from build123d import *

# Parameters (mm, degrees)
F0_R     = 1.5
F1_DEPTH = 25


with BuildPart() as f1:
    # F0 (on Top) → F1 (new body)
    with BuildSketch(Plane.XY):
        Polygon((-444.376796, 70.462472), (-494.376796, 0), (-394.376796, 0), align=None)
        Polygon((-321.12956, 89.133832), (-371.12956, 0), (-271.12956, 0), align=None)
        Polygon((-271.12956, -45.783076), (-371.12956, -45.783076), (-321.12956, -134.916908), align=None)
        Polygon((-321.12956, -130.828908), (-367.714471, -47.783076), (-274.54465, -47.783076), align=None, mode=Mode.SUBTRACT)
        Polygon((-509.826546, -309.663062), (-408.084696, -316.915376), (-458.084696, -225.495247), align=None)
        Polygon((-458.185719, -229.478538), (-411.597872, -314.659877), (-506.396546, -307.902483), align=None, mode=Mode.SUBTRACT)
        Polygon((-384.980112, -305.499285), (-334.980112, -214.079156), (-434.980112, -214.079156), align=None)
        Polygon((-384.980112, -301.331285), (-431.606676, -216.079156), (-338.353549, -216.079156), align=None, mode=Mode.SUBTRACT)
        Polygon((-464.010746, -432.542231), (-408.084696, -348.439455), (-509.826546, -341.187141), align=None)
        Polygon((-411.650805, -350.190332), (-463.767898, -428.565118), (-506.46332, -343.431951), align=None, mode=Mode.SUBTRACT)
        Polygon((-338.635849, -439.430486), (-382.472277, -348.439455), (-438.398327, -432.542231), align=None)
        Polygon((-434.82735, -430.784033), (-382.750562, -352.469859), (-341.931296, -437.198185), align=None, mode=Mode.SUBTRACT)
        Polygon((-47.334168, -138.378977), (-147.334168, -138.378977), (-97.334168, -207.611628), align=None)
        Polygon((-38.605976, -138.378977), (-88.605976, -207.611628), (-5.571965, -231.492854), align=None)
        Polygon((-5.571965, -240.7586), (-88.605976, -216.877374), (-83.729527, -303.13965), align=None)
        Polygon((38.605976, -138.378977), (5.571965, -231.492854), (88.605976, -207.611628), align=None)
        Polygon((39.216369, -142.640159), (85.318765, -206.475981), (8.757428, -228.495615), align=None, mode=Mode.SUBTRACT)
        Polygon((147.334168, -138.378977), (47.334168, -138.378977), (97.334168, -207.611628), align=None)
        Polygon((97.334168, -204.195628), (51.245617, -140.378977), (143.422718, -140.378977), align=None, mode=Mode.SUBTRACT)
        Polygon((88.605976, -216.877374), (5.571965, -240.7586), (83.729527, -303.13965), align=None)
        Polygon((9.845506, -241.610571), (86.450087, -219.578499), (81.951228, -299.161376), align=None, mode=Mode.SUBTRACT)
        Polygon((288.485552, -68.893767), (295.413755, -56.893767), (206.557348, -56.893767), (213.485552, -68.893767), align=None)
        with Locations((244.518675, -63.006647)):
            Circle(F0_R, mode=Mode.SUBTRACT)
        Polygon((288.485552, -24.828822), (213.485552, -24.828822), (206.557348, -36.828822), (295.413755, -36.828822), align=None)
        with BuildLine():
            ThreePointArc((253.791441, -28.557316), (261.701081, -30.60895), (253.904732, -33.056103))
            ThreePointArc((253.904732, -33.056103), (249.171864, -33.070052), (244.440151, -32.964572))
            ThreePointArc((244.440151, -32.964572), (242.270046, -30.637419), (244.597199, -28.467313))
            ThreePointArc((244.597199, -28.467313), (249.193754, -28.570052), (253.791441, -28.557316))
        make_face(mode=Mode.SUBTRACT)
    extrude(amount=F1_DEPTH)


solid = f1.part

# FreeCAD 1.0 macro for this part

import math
import FreeCAD as App
import Part
import Sketcher

V = App.Vector
Q = App.Units.Quantity

doc = App.newDocument("Part")
params = doc.addObject("Spreadsheet::Sheet", "Params")
for row, (alias, value) in enumerate([
    ("sketch1_diameter", "3 mm"),
    ("sketch1_width", "100 mm"),
    ("sketch1_width2", "75 mm"),
    ("sketch1_radius", "4.25 mm"),
    ("sketch1_radius2", "2.25 mm"),
    ("pad1_length", "25 mm"),
], start=1):
    params.set(f"A{row}", alias)
    params.set(f"B{row}", "=" + value)
    params.setAlias(f"B{row}", alias)

body = doc.addObject("PartDesign::Body", "Body")
body.AllowCompound = True

# Sketch on XY plane
sketch1 = body.newObject("Sketcher::SketchObject", "Sketch")
sketch1.AttachmentSupport = (doc.getObject("XY_Plane"), [""])
sketch1.MapMode = "FlatFace"
sketch1.addGeometry([
    Part.LineSegment(V(-444.4, 70.5, 0), V(-494.4, 0, 0)),  # 0
    Part.LineSegment(V(-494.4, 0, 0), V(-394.4, 0, 0)),  # 1
    Part.LineSegment(V(-394.4, 0, 0), V(-444.4, 70.5, 0)),  # 2
    Part.LineSegment(V(-321.1, 89.1, 0), V(-371.1, 0, 0)),  # 3
    Part.LineSegment(V(-371.1, 0, 0), V(-271.1, 0, 0)),  # 4
    Part.LineSegment(V(-271.1, 0, 0), V(-321.1, 89.1, 0)),  # 5
    Part.LineSegment(V(-271.1, -45.8, 0), V(-371.1, -45.8, 0)),  # 6
    Part.LineSegment(V(-371.1, -45.8, 0), V(-321.1, -134.9, 0)),  # 7
    Part.LineSegment(V(-321.1, -134.9, 0), V(-271.1, -45.8, 0)),  # 8
    Part.LineSegment(V(-274.5, -47.8, 0), V(-321.1, -130.8, 0)),  # 9
    Part.LineSegment(V(-321.1, -130.8, 0), V(-367.7, -47.8, 0)),  # 10
    Part.LineSegment(V(-367.7, -47.8, 0), V(-274.5, -47.8, 0)),  # 11
    Part.LineSegment(V(-509.8, -309.7, 0), V(-408.1, -316.9, 0)),  # 12
    Part.LineSegment(V(-408.1, -316.9, 0), V(-458.1, -225.5, 0)),  # 13
    Part.LineSegment(V(-458.1, -225.5, 0), V(-509.8, -309.7, 0)),  # 14
    Part.LineSegment(V(-506.4, -307.9, 0), V(-458.2, -229.5, 0)),  # 15
    Part.LineSegment(V(-458.2, -229.5, 0), V(-411.6, -314.7, 0)),  # 16
    Part.LineSegment(V(-411.6, -314.7, 0), V(-506.4, -307.9, 0)),  # 17
    Part.LineSegment(V(-385, -305.5, 0), V(-335, -214.1, 0)),  # 18
    Part.LineSegment(V(-335, -214.1, 0), V(-435, -214.1, 0)),  # 19
    Part.LineSegment(V(-435, -214.1, 0), V(-385, -305.5, 0)),  # 20
    Part.LineSegment(V(-338.4, -216.1, 0), V(-385, -301.3, 0)),  # 21
    Part.LineSegment(V(-385, -301.3, 0), V(-431.6, -216.1, 0)),  # 22
    Part.LineSegment(V(-431.6, -216.1, 0), V(-338.4, -216.1, 0)),  # 23
    Part.LineSegment(V(-464, -432.5, 0), V(-408.1, -348.4, 0)),  # 24
    Part.LineSegment(V(-408.1, -348.4, 0), V(-509.8, -341.2, 0)),  # 25
    Part.LineSegment(V(-509.8, -341.2, 0), V(-464, -432.5, 0)),  # 26
    Part.LineSegment(V(-506.5, -343.4, 0), V(-411.7, -350.2, 0)),  # 27
    Part.LineSegment(V(-411.7, -350.2, 0), V(-463.8, -428.6, 0)),  # 28
    Part.LineSegment(V(-463.8, -428.6, 0), V(-506.5, -343.4, 0)),  # 29
    Part.LineSegment(V(-338.6, -439.4, 0), V(-382.5, -348.4, 0)),  # 30
    Part.LineSegment(V(-382.5, -348.4, 0), V(-438.4, -432.5, 0)),  # 31
    Part.LineSegment(V(-438.4, -432.5, 0), V(-338.6, -439.4, 0)),  # 32
    Part.LineSegment(V(-341.9, -437.2, 0), V(-434.8, -430.8, 0)),  # 33
    Part.LineSegment(V(-434.8, -430.8, 0), V(-382.8, -352.5, 0)),  # 34
    Part.LineSegment(V(-382.8, -352.5, 0), V(-341.9, -437.2, 0)),  # 35
    Part.LineSegment(V(-47.3, -138.4, 0), V(-147.3, -138.4, 0)),  # 36
    Part.LineSegment(V(-147.3, -138.4, 0), V(-97.3, -207.6, 0)),  # 37
    Part.LineSegment(V(-97.3, -207.6, 0), V(-47.3, -138.4, 0)),  # 38
    Part.LineSegment(V(-38.6, -138.4, 0), V(-88.6, -207.6, 0)),  # 39
    Part.LineSegment(V(-88.6, -207.6, 0), V(-5.6, -231.5, 0)),  # 40
    Part.LineSegment(V(-5.6, -231.5, 0), V(-38.6, -138.4, 0)),  # 41
    Part.LineSegment(V(-5.6, -240.8, 0), V(-88.6, -216.9, 0)),  # 42
    Part.LineSegment(V(-88.6, -216.9, 0), V(-83.7, -303.1, 0)),  # 43
    Part.LineSegment(V(-83.7, -303.1, 0), V(-5.6, -240.8, 0)),  # 44
    Part.LineSegment(V(38.6, -138.4, 0), V(5.6, -231.5, 0)),  # 45
    Part.LineSegment(V(5.6, -231.5, 0), V(88.6, -207.6, 0)),  # 46
    Part.LineSegment(V(88.6, -207.6, 0), V(38.6, -138.4, 0)),  # 47
    Part.LineSegment(V(8.8, -228.5, 0), V(39.2, -142.6, 0)),  # 48
    Part.LineSegment(V(39.2, -142.6, 0), V(85.3, -206.5, 0)),  # 49
    Part.LineSegment(V(85.3, -206.5, 0), V(8.8, -228.5, 0)),  # 50
    Part.LineSegment(V(147.3, -138.4, 0), V(47.3, -138.4, 0)),  # 51
    Part.LineSegment(V(47.3, -138.4, 0), V(97.3, -207.6, 0)),  # 52
    Part.LineSegment(V(97.3, -207.6, 0), V(147.3, -138.4, 0)),  # 53
    Part.LineSegment(V(143.4, -140.4, 0), V(97.3, -204.2, 0)),  # 54
    Part.LineSegment(V(97.3, -204.2, 0), V(51.2, -140.4, 0)),  # 55
    Part.LineSegment(V(51.2, -140.4, 0), V(143.4, -140.4, 0)),  # 56
    Part.LineSegment(V(88.6, -216.9, 0), V(5.6, -240.8, 0)),  # 57
    Part.LineSegment(V(5.6, -240.8, 0), V(83.7, -303.1, 0)),  # 58
    Part.LineSegment(V(83.7, -303.1, 0), V(88.6, -216.9, 0)),  # 59
    Part.LineSegment(V(82, -299.2, 0), V(9.8, -241.6, 0)),  # 60
    Part.LineSegment(V(9.8, -241.6, 0), V(86.5, -219.6, 0)),  # 61
    Part.LineSegment(V(86.5, -219.6, 0), V(82, -299.2, 0)),  # 62
    Part.LineSegment(V(288.5, -68.9, 0), V(295.4, -56.9, 0)),  # 63
    Part.LineSegment(V(295.4, -56.9, 0), V(206.6, -56.9, 0)),  # 64
    Part.LineSegment(V(206.6, -56.9, 0), V(213.5, -68.9, 0)),  # 65
    Part.LineSegment(V(213.5, -68.9, 0), V(288.5, -68.9, 0)),  # 66
    Part.Circle(V(244.5, -63, 0), V(0, 0, 1), 1.5),  # 67
    Part.LineSegment(V(288.5, -24.8, 0), V(213.5, -24.8, 0)),  # 68
    Part.LineSegment(V(213.5, -24.8, 0), V(206.6, -36.8, 0)),  # 69
    Part.LineSegment(V(206.6, -36.8, 0), V(295.4, -36.8, 0)),  # 70
    Part.LineSegment(V(295.4, -36.8, 0), V(288.5, -24.8, 0)),  # 71
    Part.ArcOfCircle(Part.Circle(V(251, 154.5, 0), V(0, 0, 1), 183.1), math.radians(-92), math.radians(-89.12)),  # 72
    Part.ArcOfCircle(Part.Circle(V(257.5, -30.7, 0), V(0, 0, 1), 4.2), math.radians(-147), math.radians(149)),  # 73
    Part.ArcOfCircle(Part.Circle(V(251, 154.5, 0), V(0, 0, 1), 187.6), math.radians(-92), math.radians(-89.11)),  # 74
    Part.ArcOfCircle(Part.Circle(V(244.5, -30.7, 0), V(0, 0, 1), 2.3), math.radians(88), math.radians(268)),  # 75
], False)
sketch1.addConstraint([
    Sketcher.Constraint("Coincident", 0, 2, 1, 1),
    Sketcher.Constraint("Coincident", 1, 2, 2, 1),
    Sketcher.Constraint("Coincident", 2, 2, 0, 1),
    Sketcher.Constraint("Coincident", 3, 2, 4, 1),
    Sketcher.Constraint("Coincident", 4, 2, 5, 1),
    Sketcher.Constraint("Coincident", 5, 2, 3, 1),
    Sketcher.Constraint("Coincident", 6, 2, 7, 1),
    Sketcher.Constraint("Coincident", 7, 2, 8, 1),
    Sketcher.Constraint("Coincident", 8, 2, 6, 1),
    Sketcher.Constraint("Coincident", 9, 2, 10, 1),
    Sketcher.Constraint("Coincident", 10, 2, 11, 1),
    Sketcher.Constraint("Coincident", 11, 2, 9, 1),
    Sketcher.Constraint("Coincident", 12, 2, 13, 1),
    Sketcher.Constraint("Coincident", 13, 2, 14, 1),
    Sketcher.Constraint("Coincident", 14, 2, 12, 1),
    Sketcher.Constraint("Coincident", 15, 2, 16, 1),
    Sketcher.Constraint("Coincident", 16, 2, 17, 1),
    Sketcher.Constraint("Coincident", 17, 2, 15, 1),
    Sketcher.Constraint("Coincident", 18, 2, 19, 1),
    Sketcher.Constraint("Coincident", 19, 2, 20, 1),
    Sketcher.Constraint("Coincident", 20, 2, 18, 1),
    Sketcher.Constraint("Coincident", 21, 2, 22, 1),
    Sketcher.Constraint("Coincident", 22, 2, 23, 1),
    Sketcher.Constraint("Coincident", 23, 2, 21, 1),
    Sketcher.Constraint("Coincident", 24, 2, 25, 1),
    Sketcher.Constraint("Coincident", 25, 2, 26, 1),
    Sketcher.Constraint("Coincident", 26, 2, 24, 1),
    Sketcher.Constraint("Coincident", 27, 2, 28, 1),
    Sketcher.Constraint("Coincident", 28, 2, 29, 1),
    Sketcher.Constraint("Coincident", 29, 2, 27, 1),
    Sketcher.Constraint("Coincident", 30, 2, 31, 1),
    Sketcher.Constraint("Coincident", 31, 2, 32, 1),
    Sketcher.Constraint("Coincident", 32, 2, 30, 1),
    Sketcher.Constraint("Coincident", 33, 2, 34, 1),
    Sketcher.Constraint("Coincident", 34, 2, 35, 1),
    Sketcher.Constraint("Coincident", 35, 2, 33, 1),
    Sketcher.Constraint("Coincident", 36, 2, 37, 1),
    Sketcher.Constraint("Coincident", 37, 2, 38, 1),
    Sketcher.Constraint("Coincident", 38, 2, 36, 1),
    Sketcher.Constraint("Coincident", 39, 2, 40, 1),
    Sketcher.Constraint("Coincident", 40, 2, 41, 1),
    Sketcher.Constraint("Coincident", 41, 2, 39, 1),
    Sketcher.Constraint("Coincident", 42, 2, 43, 1),
    Sketcher.Constraint("Coincident", 43, 2, 44, 1),
    Sketcher.Constraint("Coincident", 44, 2, 42, 1),
    Sketcher.Constraint("Coincident", 45, 2, 46, 1),
    Sketcher.Constraint("Coincident", 46, 2, 47, 1),
    Sketcher.Constraint("Coincident", 47, 2, 45, 1),
    Sketcher.Constraint("Coincident", 48, 2, 49, 1),
    Sketcher.Constraint("Coincident", 49, 2, 50, 1),
    Sketcher.Constraint("Coincident", 50, 2, 48, 1),
    Sketcher.Constraint("Coincident", 51, 2, 52, 1),
    Sketcher.Constraint("Coincident", 52, 2, 53, 1),
    Sketcher.Constraint("Coincident", 53, 2, 51, 1),
    Sketcher.Constraint("Coincident", 54, 2, 55, 1),
    Sketcher.Constraint("Coincident", 55, 2, 56, 1),
    Sketcher.Constraint("Coincident", 56, 2, 54, 1),
    Sketcher.Constraint("Coincident", 57, 2, 58, 1),
    Sketcher.Constraint("Coincident", 58, 2, 59, 1),
    Sketcher.Constraint("Coincident", 59, 2, 57, 1),
    Sketcher.Constraint("Coincident", 60, 2, 61, 1),
    Sketcher.Constraint("Coincident", 61, 2, 62, 1),
    Sketcher.Constraint("Coincident", 62, 2, 60, 1),
    Sketcher.Constraint("Coincident", 63, 2, 64, 1),
    Sketcher.Constraint("Coincident", 64, 2, 65, 1),
    Sketcher.Constraint("Coincident", 65, 2, 66, 1),
    Sketcher.Constraint("Coincident", 66, 2, 63, 1),
    Sketcher.Constraint("Coincident", 68, 2, 69, 1),
    Sketcher.Constraint("Coincident", 69, 2, 70, 1),
    Sketcher.Constraint("Coincident", 70, 2, 71, 1),
    Sketcher.Constraint("Coincident", 71, 2, 68, 1),
    Sketcher.Constraint("Coincident", 72, 2, 73, 2),
    Sketcher.Constraint("Coincident", 73, 1, 74, 2),
    Sketcher.Constraint("Tangent", 74, 1, 75, 2),
    Sketcher.Constraint("Tangent", 75, 1, 72, 1),
    Sketcher.Constraint("Horizontal", 1),
    Sketcher.Constraint("Horizontal", 4),
    Sketcher.Constraint("Horizontal", 6),
    Sketcher.Constraint("Horizontal", 11),
    Sketcher.Constraint("Horizontal", 19),
    Sketcher.Constraint("Horizontal", 23),
    Sketcher.Constraint("Horizontal", 36),
    Sketcher.Constraint("Horizontal", 51),
    Sketcher.Constraint("Horizontal", 56),
    Sketcher.Constraint("Horizontal", 64),
    Sketcher.Constraint("Horizontal", 66),
    Sketcher.Constraint("Horizontal", 68),
    Sketcher.Constraint("Horizontal", 70),
    Sketcher.Constraint("Symmetric", 40, 2, 45, 2, -2),
    Sketcher.Constraint("Symmetric", 39, 2, 46, 2, -2),
    Sketcher.Constraint("Symmetric", 41, 2, 47, 2, -2),
    Sketcher.Constraint("Symmetric", 38, 2, 51, 2, -2),
    Sketcher.Constraint("Symmetric", 37, 2, 52, 2, -2),
    Sketcher.Constraint("Symmetric", 44, 2, 57, 2, -2),
    Sketcher.Constraint("Symmetric", 43, 2, 58, 2, -2),
    Sketcher.Constraint("Symmetric", 42, 2, 59, 2, -2),
    Sketcher.Constraint("PointOnObject", 0, 2, -1),
    Sketcher.Constraint("PointOnObject", 3, 2, -1),
    Sketcher.Constraint("Parallel", 5, 7),
    Sketcher.Constraint("Parallel", 3, 8),
    Sketcher.Constraint("Parallel", 8, 9),
    Sketcher.Constraint("Parallel", 7, 10),
    Sketcher.Constraint("Parallel", 14, 15),
    Sketcher.Constraint("Parallel", 13, 16),
    Sketcher.Constraint("Parallel", 12, 17),
    Sketcher.Constraint("Parallel", 16, 20),
    Sketcher.Constraint("Parallel", 18, 21),
    Sketcher.Constraint("Parallel", 20, 22),
    Sketcher.Constraint("Parallel", 17, 25),
    Sketcher.Constraint("Parallel", 25, 27),
    Sketcher.Constraint("Parallel", 24, 28),
    Sketcher.Constraint("Parallel", 26, 29),
    Sketcher.Constraint("Parallel", 28, 31),
    Sketcher.Constraint("Parallel", 32, 33),
    Sketcher.Constraint("Parallel", 31, 34),
    Sketcher.Constraint("Parallel", 30, 35),
    Sketcher.Constraint("Parallel", 38, 39),
    Sketcher.Constraint("Parallel", 40, 42),
    Sketcher.Constraint("Parallel", 37, 47),
    Sketcher.Constraint("Parallel", 45, 48),
    Sketcher.Constraint("Parallel", 47, 49),
    Sketcher.Constraint("Parallel", 46, 50),
    Sketcher.Constraint("Parallel", 39, 53),
    Sketcher.Constraint("Parallel", 53, 54),
    Sketcher.Constraint("Parallel", 52, 55),
    Sketcher.Constraint("Parallel", 58, 60),
    Sketcher.Constraint("Parallel", 57, 61),
    Sketcher.Constraint("Parallel", 59, 62),
    Sketcher.Constraint("Parallel", 63, 69),
    Sketcher.Constraint("Parallel", 65, 71),
    Sketcher.Constraint("Horizontal", 73, 3, 75, 3),
    Sketcher.Constraint("Horizontal", 24, 2, 30, 2),
    Sketcher.Constraint("Horizontal", 26, 2, 31, 2),
    Sketcher.Constraint("Horizontal", 37, 2, 39, 2),
    Sketcher.Constraint("Horizontal", 38, 2, 41, 2),
    Sketcher.Constraint("Vertical", 67, 3, 75, 3),
    Sketcher.Constraint("Vertical", 3, 2, 6, 2),
    Sketcher.Constraint("Vertical", 5, 2, 7, 2),
    Sketcher.Constraint("Vertical", 4, 2, 8, 2),
    Sketcher.Constraint("Vertical", 7, 2, 9, 2),
    Sketcher.Constraint("Vertical", 20, 2, 21, 2),
    Sketcher.Constraint("Vertical", 12, 2, 24, 2),
    Sketcher.Constraint("Vertical", 14, 2, 25, 2),
    Sketcher.Constraint("Vertical", 39, 2, 42, 2),
    Sketcher.Constraint("Vertical", 40, 2, 44, 2),
    Sketcher.Constraint("Vertical", 52, 2, 54, 2),
    Sketcher.Constraint("Vertical", 65, 2, 68, 2),
    Sketcher.Constraint("Vertical", 64, 2, 69, 2),
    Sketcher.Constraint("Vertical", 63, 2, 70, 2),
    Sketcher.Constraint("Vertical", 66, 2, 71, 2),
    Sketcher.Constraint("Equal", 1, 4),
    Sketcher.Constraint("Equal", 6, 19),
    Sketcher.Constraint("Equal", 19, 36),
    Sketcher.Constraint("Equal", 0, 2),
    Sketcher.Constraint("Equal", 13, 18),
    Sketcher.Constraint("Equal", 18, 20),
    Sketcher.Constraint("Equal", 8, 26),
    Sketcher.Constraint("Equal", 24, 30),
    Sketcher.Constraint("Equal", 2, 40),
    Sketcher.Constraint("Equal", 14, 41),
    Sketcher.Constraint("Equal", 42, 43),
    Sketcher.Constraint("Equal", 32, 44),
    Sketcher.Constraint("Diameter", 67, Q("3 mm")),
    Sketcher.Constraint("DistanceX", 1, 1, 1, 2, Q("100 mm")),
    Sketcher.Constraint("DistanceX", 66, 1, 66, 2, Q("75 mm")),
    Sketcher.Constraint("Angle", 63, Q("60.000001 deg")),
    Sketcher.Constraint("Radius", 73, Q("4.25 mm")),
    Sketcher.Constraint("Radius", 75, Q("2.25 mm")),
    Sketcher.Constraint("Distance", 12, Q("102 mm")),
    Sketcher.Constraint("Distance", 24, Q("101 mm")),
    Sketcher.Constraint("Distance", 32, Q("100 mm")),
    Sketcher.Constraint("Distance", 0, Q("86.4 mm")),
    Sketcher.Constraint("Distance", 3, Q("102.2 mm")),
    Sketcher.Constraint("Distance", 13, Q("104.2 mm")),
    Sketcher.Constraint("Distance", 14, Q("98.800001 mm")),
    Sketcher.Constraint("Distance", 37, Q("85.4 mm")),
    Sketcher.Constraint("Radius", 72, Q("183.051439 mm")),
    Sketcher.Constraint("DistanceX", 56, 1, 56, 2, Q("92.177101 mm")),
    Sketcher.Constraint("Radius", 74, Q("187.552324 mm")),
    Sketcher.Constraint("Distance", 34, Q("94.048401 mm")),
    Sketcher.Constraint("DistanceX", 11, 1, 11, 2, Q("93.169821 mm")),
    Sketcher.Constraint("DistanceX", 28, 2, -1, 1, Q("463.767898 mm")),
    Sketcher.Constraint("DistanceY", 44, 2, -1, 1, Q("240.7586 mm")),
    Sketcher.Constraint("DistanceY", 61, 2, -1, 1, Q("219.578499 mm")),
    Sketcher.Constraint("DistanceX", -1, 1, 75, 1, Q("244.597199 mm")),
    Sketcher.Constraint("Distance", 21, Q("97.169758 mm")),
    Sketcher.Constraint("Distance", 28, Q("94.12119 mm")),
    Sketcher.Constraint("Distance", 50, Q("79.66494 mm")),
    Sketcher.Constraint("Distance", 60, Q("92.256871 mm")),
    Sketcher.Constraint("DistanceX", 64, 2, 64, 1, Q("88.856407 mm")),
    Sketcher.Constraint("DistanceX", -1, 1, 72, 3, Q("250.985571 mm")),
    Sketcher.Constraint("DistanceX", -1, 1, 73, 3, Q("257.452428 mm")),
    Sketcher.Constraint("DistanceX", -1, 1, 74, 3, Q("250.985579 mm")),
    Sketcher.Constraint("DistanceX", 3, 2, -1, 1, Q("371.12956 mm")),
    Sketcher.Constraint("DistanceY", 7, 2, -1, 1, Q("134.916908 mm")),
    Sketcher.Constraint("DistanceY", 9, 2, -1, 1, Q("130.828908 mm")),
    Sketcher.Constraint("DistanceX", 15, 2, -1, 1, Q("458.185719 mm")),
    Sketcher.Constraint("DistanceX", 16, 2, -1, 1, Q("411.597872 mm")),
    Sketcher.Constraint("DistanceX", 18, 2, -1, 1, Q("334.980112 mm")),
    Sketcher.Constraint("DistanceY", 25, 2, -1, 1, Q("341.187141 mm")),
    Sketcher.Constraint("DistanceY", 27, 2, -1, 1, Q("350.190332 mm")),
    Sketcher.Constraint("DistanceX", 32, 2, -1, 1, Q("338.635849 mm")),
    Sketcher.Constraint("DistanceX", 33, 2, -1, 1, Q("434.82735 mm")),
    Sketcher.Constraint("DistanceY", 34, 2, -1, 1, Q("352.469859 mm")),
    Sketcher.Constraint("DistanceX", 36, 2, -1, 1, Q("147.334168 mm")),
    Sketcher.Constraint("DistanceY", 37, 2, -1, 1, Q("207.611628 mm")),
    Sketcher.Constraint("DistanceX", -1, 1, 48, 2, Q("39.216369 mm")),
    Sketcher.Constraint("DistanceY", 48, 2, -1, 1, Q("142.640159 mm")),
    Sketcher.Constraint("DistanceY", 54, 2, -1, 1, Q("204.195628 mm")),
    Sketcher.Constraint("DistanceX", -1, 1, 62, 2, Q("81.951228 mm")),
    Sketcher.Constraint("DistanceX", -1, 1, 66, 2, Q("288.485552 mm")),
    Sketcher.Constraint("DistanceY", 68, 2, -1, 1, Q("24.828822 mm")),
    Sketcher.Constraint("DistanceY", 67, 3, -1, 1, Q("63.006647 mm")),
    Sketcher.Constraint("DistanceY", -1, 1, 72, 3, Q("154.472617 mm")),
    Sketcher.Constraint("DistanceX", 0, 2, -1, 1, Q("494.376796 mm")),
    Sketcher.Constraint("DistanceX", 12, 2, -1, 1, Q("408.084696 mm")),
    Sketcher.Constraint("DistanceY", 12, 2, -1, 1, Q("316.915376 mm")),
    Sketcher.Constraint("DistanceY", 15, 2, -1, 1, Q("229.478538 mm")),
    Sketcher.Constraint("DistanceY", 18, 2, -1, 1, Q("214.079156 mm")),
    Sketcher.Constraint("DistanceY", 21, 2, -1, 1, Q("301.331285 mm")),
    Sketcher.Constraint("DistanceX", 39, 2, -1, 1, Q("88.605976 mm")),
    Sketcher.Constraint("DistanceY", 63, 2, -1, 1, Q("56.893767 mm")),
])
sketch1.setExpression("Constraints[162]", "Params.sketch1_diameter")
sketch1.setExpression("Constraints[163]", "Params.sketch1_width")
sketch1.setExpression("Constraints[164]", "Params.sketch1_width2")
sketch1.setExpression("Constraints[166]", "Params.sketch1_radius")
sketch1.setExpression("Constraints[167]", "Params.sketch1_radius2")
pad1 = body.newObject("PartDesign::Pad", "Pad")
pad1.Profile = sketch1
pad1.setExpression("Length", "Params.pad1_length")

doc.recompute()
